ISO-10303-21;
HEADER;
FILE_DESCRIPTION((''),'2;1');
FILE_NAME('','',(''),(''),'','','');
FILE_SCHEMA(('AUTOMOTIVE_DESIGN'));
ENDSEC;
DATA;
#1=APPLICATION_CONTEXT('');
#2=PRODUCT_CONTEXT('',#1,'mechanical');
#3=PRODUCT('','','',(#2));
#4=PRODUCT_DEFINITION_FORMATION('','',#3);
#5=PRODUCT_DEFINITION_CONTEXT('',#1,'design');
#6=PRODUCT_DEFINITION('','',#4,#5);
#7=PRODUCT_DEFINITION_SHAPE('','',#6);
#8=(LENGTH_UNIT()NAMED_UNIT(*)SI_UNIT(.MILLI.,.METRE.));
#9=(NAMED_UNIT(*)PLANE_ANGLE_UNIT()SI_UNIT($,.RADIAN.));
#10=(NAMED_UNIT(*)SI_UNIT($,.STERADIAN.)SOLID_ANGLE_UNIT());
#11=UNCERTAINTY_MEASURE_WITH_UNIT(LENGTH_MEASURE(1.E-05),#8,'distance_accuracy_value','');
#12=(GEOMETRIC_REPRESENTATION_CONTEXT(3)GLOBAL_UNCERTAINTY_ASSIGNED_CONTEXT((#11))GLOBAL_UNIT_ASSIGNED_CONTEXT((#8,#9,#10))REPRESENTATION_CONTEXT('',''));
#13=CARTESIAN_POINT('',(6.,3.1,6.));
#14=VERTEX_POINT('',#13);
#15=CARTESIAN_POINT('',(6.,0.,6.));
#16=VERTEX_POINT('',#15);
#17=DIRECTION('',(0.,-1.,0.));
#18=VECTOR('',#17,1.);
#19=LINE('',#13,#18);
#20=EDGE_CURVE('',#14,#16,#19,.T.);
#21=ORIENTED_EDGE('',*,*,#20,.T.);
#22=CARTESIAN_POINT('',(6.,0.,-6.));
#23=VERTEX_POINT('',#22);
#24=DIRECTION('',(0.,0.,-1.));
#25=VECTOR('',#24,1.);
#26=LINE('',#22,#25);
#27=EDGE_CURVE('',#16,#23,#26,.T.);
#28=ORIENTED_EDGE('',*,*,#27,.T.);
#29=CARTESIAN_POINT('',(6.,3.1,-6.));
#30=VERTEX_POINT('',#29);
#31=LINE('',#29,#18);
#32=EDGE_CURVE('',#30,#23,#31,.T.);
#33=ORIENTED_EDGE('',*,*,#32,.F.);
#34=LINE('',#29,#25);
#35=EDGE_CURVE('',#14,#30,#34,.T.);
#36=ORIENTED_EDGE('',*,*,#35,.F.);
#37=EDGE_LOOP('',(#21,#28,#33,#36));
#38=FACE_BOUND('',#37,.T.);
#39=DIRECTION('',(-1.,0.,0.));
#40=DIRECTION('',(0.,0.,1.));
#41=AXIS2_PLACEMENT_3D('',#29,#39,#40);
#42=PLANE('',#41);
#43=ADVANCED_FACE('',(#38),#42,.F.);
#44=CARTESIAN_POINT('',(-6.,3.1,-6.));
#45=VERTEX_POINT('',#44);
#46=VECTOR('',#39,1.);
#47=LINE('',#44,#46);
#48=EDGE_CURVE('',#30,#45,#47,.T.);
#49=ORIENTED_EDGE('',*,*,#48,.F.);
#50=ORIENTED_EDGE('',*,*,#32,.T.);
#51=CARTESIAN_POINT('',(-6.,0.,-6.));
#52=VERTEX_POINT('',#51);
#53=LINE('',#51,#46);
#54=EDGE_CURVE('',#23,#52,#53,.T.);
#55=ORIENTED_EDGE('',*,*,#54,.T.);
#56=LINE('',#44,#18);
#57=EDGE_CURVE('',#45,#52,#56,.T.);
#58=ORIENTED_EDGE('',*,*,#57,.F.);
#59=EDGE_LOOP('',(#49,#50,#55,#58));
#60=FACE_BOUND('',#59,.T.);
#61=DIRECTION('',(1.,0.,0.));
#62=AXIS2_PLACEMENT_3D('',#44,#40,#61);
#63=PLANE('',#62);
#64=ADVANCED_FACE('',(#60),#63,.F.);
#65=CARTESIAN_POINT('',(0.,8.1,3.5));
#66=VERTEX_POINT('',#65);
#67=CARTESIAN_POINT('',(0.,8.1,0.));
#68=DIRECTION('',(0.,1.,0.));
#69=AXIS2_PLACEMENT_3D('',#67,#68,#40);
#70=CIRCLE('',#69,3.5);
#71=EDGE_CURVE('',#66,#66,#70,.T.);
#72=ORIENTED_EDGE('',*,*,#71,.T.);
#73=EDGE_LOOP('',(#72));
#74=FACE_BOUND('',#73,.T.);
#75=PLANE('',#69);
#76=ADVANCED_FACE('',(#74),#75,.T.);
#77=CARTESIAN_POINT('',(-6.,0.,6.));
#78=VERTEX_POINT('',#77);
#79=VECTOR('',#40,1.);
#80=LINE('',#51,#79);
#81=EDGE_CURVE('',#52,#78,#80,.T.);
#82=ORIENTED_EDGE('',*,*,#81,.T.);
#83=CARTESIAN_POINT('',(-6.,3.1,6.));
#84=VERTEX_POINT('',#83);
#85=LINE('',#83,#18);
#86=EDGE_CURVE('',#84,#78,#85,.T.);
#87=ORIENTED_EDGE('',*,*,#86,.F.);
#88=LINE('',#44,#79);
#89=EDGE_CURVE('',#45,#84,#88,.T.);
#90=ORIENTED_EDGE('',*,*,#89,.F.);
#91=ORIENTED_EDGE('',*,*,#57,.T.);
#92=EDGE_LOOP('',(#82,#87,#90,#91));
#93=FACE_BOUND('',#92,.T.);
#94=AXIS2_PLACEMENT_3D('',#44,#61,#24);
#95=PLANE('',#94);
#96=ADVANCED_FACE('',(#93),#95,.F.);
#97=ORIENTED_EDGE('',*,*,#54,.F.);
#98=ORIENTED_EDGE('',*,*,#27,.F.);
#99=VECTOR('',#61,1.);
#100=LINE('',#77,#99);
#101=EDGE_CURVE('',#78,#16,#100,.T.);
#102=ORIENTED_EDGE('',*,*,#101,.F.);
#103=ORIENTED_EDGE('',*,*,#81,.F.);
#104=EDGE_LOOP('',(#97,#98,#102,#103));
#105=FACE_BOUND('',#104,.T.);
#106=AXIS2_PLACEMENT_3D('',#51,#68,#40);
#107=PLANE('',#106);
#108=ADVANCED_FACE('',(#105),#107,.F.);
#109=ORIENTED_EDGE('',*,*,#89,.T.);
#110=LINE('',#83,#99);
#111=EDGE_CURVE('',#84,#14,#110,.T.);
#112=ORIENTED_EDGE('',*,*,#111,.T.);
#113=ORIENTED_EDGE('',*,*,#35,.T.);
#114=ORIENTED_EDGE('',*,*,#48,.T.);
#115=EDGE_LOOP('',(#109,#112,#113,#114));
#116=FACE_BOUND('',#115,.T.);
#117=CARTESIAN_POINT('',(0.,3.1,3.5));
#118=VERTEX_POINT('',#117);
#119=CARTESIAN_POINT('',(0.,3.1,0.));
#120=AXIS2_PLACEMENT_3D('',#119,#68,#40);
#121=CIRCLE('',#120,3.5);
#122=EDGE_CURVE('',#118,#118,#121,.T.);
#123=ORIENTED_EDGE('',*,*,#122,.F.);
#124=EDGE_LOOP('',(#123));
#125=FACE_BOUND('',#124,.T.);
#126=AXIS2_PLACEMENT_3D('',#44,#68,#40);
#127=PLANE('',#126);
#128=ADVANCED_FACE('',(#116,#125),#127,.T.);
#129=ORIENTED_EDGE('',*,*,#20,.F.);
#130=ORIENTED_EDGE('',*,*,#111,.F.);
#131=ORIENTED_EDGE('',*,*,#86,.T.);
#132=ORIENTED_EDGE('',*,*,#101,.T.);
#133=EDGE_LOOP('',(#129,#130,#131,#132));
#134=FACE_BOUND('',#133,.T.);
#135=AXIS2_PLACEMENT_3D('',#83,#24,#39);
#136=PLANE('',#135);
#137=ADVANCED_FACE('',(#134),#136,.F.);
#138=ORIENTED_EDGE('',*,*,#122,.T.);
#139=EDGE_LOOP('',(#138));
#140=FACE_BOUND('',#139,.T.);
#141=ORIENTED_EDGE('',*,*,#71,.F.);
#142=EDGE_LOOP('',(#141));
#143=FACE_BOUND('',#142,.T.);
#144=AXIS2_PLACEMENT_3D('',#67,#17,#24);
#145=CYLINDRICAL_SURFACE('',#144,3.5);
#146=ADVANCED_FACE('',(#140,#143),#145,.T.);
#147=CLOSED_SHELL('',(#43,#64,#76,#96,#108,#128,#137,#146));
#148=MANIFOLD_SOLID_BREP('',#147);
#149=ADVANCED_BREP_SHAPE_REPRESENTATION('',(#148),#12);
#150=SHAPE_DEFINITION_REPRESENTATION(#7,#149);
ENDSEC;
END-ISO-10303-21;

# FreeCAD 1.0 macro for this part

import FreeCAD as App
import Part
import Sketcher

doc = App.newDocument("Part")
body = doc.addObject("PartDesign::Body", "Body")

sketch1 = body.newObject("Sketcher::SketchObject", "Sketch")
sketch1.AttachmentSupport = (doc.getObject("XZ_Plane"), [""])
sketch1.MapMode = "FlatFace"
sketch1.addGeometry([
    Part.LineSegment(App.Vector(-6, -6, 0), App.Vector(-6, 6, 0)),
    Part.LineSegment(App.Vector(-6, 6, 0), App.Vector(6, 6, 0)),
    Part.LineSegment(App.Vector(6, 6, 0), App.Vector(6, -6, 0)),
    Part.LineSegment(App.Vector(6, -6, 0), App.Vector(-6, -6, 0)),
], False)
sketch1.addConstraint([
    Sketcher.Constraint("Coincident", 0, 2, 1, 1),
    Sketcher.Constraint("Coincident", 1, 2, 2, 1),
    Sketcher.Constraint("Coincident", 2, 2, 3, 1),
    Sketcher.Constraint("Coincident", 3, 2, 0, 1),
    Sketcher.Constraint("Vertical", 0),
    Sketcher.Constraint("Horizontal", 1),
    Sketcher.Constraint("Vertical", 2),
    Sketcher.Constraint("Horizontal", 3),
    Sketcher.Constraint("Symmetric", 0, 2, 2, 2, -1, 1),
    Sketcher.Constraint("Equal", 3, 0),
    Sketcher.Constraint("DistanceX", 1, 1, 1, 2, 12.0),
])
pad1 = body.newObject("PartDesign::Pad", "Pad")
pad1.Profile = sketch1
pad1.Length = 3.1
pad1.Reversed = True

sketch2 = body.newObject("Sketcher::SketchObject", "Sketch001")
sketch2.AttachmentSupport = (doc.getObject("XZ_Plane"), [""])
sketch2.MapMode = "FlatFace"
sketch2.AttachmentOffset = App.Placement(App.Vector(0, 0, -3.1), App.Rotation())
sketch2.addGeometry(Part.Circle(App.Vector(0, 0, 0), App.Vector(0, 0, 1), 3.5), False)
sketch2.addConstraint([
    Sketcher.Constraint("Coincident", 0, 3, -1, 1),
    Sketcher.Constraint("Diameter", 0, 7.0),
])
pad2 = body.newObject("PartDesign::Pad", "Pad001")
pad2.Profile = sketch2
pad2.Length = 5
pad2.Reversed = True

doc.recompute()
